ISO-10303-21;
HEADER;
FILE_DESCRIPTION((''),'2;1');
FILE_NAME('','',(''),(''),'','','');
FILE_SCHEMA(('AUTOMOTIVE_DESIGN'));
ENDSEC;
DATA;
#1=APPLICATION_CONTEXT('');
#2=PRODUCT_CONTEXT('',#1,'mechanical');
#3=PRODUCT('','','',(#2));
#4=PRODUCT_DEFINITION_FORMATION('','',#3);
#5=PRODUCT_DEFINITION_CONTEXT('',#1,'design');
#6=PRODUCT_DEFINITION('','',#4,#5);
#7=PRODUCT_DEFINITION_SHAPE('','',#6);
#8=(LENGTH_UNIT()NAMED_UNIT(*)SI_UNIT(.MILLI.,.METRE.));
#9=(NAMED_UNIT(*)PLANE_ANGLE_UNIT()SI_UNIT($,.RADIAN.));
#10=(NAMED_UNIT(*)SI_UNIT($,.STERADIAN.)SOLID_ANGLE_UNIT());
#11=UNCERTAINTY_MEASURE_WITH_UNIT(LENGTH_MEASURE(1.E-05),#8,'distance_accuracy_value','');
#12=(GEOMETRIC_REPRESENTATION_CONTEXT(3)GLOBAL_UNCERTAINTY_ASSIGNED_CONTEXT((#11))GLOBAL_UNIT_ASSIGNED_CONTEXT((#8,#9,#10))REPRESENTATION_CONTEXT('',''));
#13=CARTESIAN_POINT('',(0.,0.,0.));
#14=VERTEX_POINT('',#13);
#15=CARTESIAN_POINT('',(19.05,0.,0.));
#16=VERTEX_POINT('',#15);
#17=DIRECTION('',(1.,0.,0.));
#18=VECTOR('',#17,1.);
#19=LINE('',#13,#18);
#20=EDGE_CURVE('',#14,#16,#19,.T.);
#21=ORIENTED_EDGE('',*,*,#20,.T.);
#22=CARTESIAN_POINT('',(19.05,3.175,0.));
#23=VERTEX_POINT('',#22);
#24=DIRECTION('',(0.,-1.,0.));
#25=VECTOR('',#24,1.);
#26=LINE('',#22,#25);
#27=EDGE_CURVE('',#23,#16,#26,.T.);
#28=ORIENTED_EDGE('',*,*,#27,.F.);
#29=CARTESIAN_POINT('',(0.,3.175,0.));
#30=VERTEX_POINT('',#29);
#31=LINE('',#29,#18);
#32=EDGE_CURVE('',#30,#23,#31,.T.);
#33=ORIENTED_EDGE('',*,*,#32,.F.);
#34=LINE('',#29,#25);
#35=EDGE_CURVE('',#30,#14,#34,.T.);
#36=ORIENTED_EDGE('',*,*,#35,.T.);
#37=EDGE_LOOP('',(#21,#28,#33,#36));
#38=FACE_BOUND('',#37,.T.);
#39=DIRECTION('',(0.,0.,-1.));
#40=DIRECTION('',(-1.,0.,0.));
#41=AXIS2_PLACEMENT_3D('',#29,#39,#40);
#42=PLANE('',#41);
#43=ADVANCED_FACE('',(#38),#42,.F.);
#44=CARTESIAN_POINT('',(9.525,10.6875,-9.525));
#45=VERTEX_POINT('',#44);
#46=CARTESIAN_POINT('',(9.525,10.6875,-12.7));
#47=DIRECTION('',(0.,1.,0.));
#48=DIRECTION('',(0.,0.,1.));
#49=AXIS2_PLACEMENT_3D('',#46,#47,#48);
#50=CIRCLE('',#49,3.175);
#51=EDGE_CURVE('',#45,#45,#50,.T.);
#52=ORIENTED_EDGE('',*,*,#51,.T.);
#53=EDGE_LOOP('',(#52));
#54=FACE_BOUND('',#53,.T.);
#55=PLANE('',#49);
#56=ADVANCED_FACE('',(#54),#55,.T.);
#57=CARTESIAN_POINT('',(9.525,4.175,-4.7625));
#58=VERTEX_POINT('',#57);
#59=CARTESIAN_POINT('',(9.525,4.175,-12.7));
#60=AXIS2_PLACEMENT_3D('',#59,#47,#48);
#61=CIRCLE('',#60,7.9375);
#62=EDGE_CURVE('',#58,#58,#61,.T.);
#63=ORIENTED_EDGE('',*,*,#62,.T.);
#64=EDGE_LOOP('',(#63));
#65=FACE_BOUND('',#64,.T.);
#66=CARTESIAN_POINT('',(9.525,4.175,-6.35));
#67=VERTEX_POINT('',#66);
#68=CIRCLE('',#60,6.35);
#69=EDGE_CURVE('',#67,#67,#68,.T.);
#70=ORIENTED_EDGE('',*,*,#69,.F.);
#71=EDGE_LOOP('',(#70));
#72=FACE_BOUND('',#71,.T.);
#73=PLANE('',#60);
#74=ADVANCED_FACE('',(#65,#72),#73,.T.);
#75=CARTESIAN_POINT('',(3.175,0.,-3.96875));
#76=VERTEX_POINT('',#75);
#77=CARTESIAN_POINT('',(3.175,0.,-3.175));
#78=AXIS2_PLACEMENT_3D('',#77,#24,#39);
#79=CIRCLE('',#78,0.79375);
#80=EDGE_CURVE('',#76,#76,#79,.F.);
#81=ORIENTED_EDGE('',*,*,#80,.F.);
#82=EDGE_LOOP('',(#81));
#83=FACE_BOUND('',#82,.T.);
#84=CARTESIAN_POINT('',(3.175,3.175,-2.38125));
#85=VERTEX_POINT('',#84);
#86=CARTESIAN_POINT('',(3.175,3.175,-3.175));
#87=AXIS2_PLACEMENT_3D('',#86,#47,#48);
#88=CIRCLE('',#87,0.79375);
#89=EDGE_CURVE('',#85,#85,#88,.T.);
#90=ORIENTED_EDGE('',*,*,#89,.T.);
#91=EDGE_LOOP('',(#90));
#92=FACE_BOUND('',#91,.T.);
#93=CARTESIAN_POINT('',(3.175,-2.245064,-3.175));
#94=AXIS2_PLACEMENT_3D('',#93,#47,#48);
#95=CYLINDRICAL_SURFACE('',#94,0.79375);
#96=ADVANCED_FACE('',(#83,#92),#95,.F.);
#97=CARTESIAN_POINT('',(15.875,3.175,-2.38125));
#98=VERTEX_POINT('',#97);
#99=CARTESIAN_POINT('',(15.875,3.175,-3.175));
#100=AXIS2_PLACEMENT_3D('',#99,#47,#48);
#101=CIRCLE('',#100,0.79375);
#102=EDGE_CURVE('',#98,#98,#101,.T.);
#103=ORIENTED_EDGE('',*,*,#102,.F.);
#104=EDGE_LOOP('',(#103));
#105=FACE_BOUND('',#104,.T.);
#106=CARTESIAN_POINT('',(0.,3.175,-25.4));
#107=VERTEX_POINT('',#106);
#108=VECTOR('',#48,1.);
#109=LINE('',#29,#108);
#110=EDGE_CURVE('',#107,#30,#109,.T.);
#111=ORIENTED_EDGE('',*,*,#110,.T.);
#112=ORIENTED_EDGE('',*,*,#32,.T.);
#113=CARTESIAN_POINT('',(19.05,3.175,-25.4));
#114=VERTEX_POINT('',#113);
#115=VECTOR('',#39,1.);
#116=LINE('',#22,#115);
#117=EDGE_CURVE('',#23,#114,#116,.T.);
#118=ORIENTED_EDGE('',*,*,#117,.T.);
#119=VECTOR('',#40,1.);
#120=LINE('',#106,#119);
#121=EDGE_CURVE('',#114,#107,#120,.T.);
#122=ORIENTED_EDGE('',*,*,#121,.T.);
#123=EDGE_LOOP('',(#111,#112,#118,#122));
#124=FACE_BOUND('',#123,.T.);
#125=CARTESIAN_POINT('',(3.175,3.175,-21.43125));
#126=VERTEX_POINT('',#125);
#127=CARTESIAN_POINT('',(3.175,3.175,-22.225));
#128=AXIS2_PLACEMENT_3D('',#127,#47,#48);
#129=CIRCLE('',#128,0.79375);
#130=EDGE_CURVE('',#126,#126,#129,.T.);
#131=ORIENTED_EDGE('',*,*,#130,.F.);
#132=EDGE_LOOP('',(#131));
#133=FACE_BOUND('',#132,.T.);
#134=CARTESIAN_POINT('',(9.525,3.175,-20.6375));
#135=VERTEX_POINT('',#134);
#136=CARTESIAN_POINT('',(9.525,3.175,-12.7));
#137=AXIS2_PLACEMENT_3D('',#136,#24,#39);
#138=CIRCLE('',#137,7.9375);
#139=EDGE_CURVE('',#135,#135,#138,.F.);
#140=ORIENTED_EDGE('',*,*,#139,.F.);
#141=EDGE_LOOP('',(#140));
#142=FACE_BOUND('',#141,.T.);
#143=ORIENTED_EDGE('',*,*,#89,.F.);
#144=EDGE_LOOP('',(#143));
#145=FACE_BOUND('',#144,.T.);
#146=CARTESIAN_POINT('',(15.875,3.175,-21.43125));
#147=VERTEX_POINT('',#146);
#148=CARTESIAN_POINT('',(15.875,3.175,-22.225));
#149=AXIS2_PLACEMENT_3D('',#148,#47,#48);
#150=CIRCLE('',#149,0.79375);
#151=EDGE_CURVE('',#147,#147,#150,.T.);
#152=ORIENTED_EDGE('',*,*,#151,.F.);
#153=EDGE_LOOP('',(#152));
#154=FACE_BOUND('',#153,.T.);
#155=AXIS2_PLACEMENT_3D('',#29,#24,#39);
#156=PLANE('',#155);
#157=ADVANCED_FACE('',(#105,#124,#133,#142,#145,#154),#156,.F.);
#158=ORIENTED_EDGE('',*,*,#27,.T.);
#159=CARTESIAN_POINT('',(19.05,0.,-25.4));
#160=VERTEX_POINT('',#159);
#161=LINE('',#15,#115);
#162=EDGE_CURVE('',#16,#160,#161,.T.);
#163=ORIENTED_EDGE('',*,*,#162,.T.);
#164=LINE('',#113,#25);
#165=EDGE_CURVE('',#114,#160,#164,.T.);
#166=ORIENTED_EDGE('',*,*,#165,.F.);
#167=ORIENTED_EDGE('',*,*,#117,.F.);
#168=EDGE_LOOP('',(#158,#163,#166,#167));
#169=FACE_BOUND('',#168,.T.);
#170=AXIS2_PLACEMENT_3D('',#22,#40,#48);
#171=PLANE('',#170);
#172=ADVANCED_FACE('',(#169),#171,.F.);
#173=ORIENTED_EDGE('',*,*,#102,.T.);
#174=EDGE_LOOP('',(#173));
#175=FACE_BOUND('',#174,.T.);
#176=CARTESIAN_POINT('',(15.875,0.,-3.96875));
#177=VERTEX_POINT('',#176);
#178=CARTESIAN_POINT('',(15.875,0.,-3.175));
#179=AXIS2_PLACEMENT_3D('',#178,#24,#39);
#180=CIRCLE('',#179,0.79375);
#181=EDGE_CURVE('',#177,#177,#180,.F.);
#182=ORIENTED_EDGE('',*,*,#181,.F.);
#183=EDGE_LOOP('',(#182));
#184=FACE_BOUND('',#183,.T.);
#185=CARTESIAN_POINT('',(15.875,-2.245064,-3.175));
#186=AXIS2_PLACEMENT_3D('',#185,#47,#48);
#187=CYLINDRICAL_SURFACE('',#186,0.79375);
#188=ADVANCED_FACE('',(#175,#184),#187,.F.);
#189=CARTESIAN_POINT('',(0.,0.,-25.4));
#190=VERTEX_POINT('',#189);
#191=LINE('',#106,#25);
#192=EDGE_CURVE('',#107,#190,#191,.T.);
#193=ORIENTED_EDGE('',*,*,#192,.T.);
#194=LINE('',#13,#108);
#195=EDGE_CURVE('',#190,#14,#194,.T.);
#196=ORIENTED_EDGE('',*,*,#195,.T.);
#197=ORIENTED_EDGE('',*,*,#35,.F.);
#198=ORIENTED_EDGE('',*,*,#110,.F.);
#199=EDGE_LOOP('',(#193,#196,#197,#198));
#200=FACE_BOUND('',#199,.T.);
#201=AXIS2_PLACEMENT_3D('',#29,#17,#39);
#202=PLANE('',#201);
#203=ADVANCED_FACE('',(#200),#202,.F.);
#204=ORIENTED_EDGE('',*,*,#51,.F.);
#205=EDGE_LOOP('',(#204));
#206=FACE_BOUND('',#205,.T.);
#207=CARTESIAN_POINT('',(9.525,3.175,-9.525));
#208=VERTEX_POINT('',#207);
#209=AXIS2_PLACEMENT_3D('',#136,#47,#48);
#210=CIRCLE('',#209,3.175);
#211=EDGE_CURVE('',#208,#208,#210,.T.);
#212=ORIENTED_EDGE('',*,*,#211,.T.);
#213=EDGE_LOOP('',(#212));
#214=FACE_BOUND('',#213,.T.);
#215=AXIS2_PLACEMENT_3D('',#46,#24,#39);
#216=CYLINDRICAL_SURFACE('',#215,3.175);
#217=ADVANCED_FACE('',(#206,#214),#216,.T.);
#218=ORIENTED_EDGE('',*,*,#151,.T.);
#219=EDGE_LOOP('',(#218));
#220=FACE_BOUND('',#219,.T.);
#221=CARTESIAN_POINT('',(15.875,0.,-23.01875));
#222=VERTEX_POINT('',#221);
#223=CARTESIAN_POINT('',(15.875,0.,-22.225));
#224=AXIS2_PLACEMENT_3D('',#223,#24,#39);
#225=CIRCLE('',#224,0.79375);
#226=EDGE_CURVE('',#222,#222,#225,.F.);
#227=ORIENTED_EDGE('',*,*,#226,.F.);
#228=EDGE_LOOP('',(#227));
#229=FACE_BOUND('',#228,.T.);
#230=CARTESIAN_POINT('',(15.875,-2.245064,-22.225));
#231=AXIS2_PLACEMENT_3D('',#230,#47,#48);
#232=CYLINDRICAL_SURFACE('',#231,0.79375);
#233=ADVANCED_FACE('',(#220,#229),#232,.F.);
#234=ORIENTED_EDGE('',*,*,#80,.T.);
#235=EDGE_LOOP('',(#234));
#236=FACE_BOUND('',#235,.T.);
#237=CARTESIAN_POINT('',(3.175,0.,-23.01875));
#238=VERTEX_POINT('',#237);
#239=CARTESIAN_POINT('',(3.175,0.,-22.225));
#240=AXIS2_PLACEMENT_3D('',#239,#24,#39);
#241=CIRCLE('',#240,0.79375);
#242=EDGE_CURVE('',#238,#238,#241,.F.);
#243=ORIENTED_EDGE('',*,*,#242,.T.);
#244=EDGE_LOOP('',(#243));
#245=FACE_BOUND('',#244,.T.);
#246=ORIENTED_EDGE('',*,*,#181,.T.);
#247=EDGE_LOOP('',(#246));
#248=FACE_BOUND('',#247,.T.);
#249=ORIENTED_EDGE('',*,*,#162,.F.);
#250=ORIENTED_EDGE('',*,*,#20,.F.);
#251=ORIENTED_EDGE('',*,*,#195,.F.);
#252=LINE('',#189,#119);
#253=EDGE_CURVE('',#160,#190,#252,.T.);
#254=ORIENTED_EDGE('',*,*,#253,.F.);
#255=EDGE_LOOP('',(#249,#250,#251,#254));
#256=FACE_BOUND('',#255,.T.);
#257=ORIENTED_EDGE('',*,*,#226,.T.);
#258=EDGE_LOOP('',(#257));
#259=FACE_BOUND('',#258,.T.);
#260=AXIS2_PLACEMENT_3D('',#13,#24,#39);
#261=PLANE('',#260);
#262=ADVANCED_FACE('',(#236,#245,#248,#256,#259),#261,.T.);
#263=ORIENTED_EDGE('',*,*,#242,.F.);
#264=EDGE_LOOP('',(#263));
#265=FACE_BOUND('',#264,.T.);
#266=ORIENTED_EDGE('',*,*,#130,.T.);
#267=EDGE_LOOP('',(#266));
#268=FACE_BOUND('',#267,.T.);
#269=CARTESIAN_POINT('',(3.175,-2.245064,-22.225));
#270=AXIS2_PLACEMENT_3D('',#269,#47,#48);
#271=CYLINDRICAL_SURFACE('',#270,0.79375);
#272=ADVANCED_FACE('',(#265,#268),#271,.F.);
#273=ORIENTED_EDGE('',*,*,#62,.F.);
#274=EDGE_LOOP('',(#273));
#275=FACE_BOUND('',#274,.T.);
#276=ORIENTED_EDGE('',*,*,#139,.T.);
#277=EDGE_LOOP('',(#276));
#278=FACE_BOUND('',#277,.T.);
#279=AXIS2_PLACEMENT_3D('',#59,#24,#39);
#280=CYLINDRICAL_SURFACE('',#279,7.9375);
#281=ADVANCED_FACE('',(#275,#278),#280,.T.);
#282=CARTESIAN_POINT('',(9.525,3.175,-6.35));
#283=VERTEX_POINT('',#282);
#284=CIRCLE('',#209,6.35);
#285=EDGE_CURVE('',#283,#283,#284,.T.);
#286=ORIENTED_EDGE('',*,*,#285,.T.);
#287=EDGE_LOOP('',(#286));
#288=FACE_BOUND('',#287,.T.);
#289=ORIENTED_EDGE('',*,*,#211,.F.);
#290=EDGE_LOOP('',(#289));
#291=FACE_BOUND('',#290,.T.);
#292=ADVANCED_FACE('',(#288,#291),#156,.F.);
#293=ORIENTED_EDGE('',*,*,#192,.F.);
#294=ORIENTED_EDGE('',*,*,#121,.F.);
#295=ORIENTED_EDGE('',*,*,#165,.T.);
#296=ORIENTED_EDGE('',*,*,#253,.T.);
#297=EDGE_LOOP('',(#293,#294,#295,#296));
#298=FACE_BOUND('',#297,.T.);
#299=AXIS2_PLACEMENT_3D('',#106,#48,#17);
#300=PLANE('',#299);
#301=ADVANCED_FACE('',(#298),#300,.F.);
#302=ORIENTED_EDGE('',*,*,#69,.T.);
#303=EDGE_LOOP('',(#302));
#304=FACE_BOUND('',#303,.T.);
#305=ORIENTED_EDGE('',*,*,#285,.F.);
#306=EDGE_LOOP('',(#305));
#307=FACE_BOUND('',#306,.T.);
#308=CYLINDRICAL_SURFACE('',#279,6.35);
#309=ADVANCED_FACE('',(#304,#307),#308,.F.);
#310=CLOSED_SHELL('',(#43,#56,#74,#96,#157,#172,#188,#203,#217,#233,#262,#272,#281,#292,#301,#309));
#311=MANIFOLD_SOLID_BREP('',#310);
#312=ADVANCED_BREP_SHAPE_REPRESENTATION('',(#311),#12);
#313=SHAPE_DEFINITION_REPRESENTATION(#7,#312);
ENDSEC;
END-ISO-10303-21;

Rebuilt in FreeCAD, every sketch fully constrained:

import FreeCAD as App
import Part
import Sketcher
from FreeCAD import Vector
Q = App.Units.Quantity

doc = App.newDocument("Part")
body = doc.addObject("PartDesign::Body", "Body")

# Sketch on XZ plane
sketch1 = body.newObject("Sketcher::SketchObject", "Sketch")
sketch1.AttachmentSupport = (doc.getObject("XZ_Plane"), [""])
sketch1.MapMode = "FlatFace"
sketch1.addGeometry(Part.LineSegment(Vector(0, -25, 0), Vector(0, 0, 0)), False)
sketch1.addGeometry(Part.LineSegment(Vector(0, 0, 0), Vector(19, 0, 0)), False)
sketch1.addGeometry(Part.LineSegment(Vector(19, 0, 0), Vector(19, -25, 0)), False)
sketch1.addGeometry(Part.LineSegment(Vector(19, -25, 0), Vector(0, -25, 0)), False)
sketch1.addConstraint(Sketcher.Constraint("Coincident", 0, 2, 1, 1))
sketch1.addConstraint(Sketcher.Constraint("Coincident", 1, 2, 2, 1))
sketch1.addConstraint(Sketcher.Constraint("Coincident", 2, 2, 3, 1))
sketch1.addConstraint(Sketcher.Constraint("Coincident", 3, 2, 0, 1))
sketch1.addConstraint(Sketcher.Constraint("Vertical", 0))
sketch1.addConstraint(Sketcher.Constraint("Horizontal", 1))
sketch1.addConstraint(Sketcher.Constraint("Vertical", 2))
sketch1.addConstraint(Sketcher.Constraint("Horizontal", 3))
sketch1.addConstraint(Sketcher.Constraint("Coincident", 0, 2, -1, 1))
sketch1.addConstraint(Sketcher.Constraint("DistanceY", 0, 1, 0, 2, Q("1 in")))
sketch1.addConstraint(Sketcher.Constraint("DistanceX", 1, 1, 1, 2, Q("0.75 in")))
pad1 = body.newObject("PartDesign::Pad", "Pad")
pad1.Profile = sketch1
pad1.Length = Q("0.125 in")
pad1.Reversed = True

# Sketch on XZ plane
sketch2 = body.newObject("Sketcher::SketchObject", "Sketch001")
sketch2.AttachmentSupport = (doc.getObject("XZ_Plane"), [""])
sketch2.MapMode = "FlatFace"
sketch2.AttachmentOffset = App.Placement(Vector(0, 0, -0.125 * 25.4), App.Rotation())
sketch2.addGeometry(Part.Circle(Vector(9.5, -12.7, 0), Vector(0, 0, 1), 3.2), False)
sketch2.addConstraint(Sketcher.Constraint("Diameter", 0, Q("0.25 in")))
sketch2.addConstraint(Sketcher.Constraint("DistanceY", 0, 3, -1, 1, Q("0.5 in")))
sketch2.addConstraint(Sketcher.Constraint("DistanceX", -1, 1, 0, 3, Q("0.375 in")))
pad2 = body.newObject("PartDesign::Pad", "Pad001")
pad2.Profile = sketch2
pad2.Length = 7.5125
pad2.Reversed = True

# Sketch on XZ plane
sketch3 = body.newObject("Sketcher::SketchObject", "Sketch002")
sketch3.AttachmentSupport = (doc.getObject("XZ_Plane"), [""])
sketch3.MapMode = "FlatFace"
sketch3.AttachmentOffset = App.Placement(Vector(0, 0, -0.125 * 25.4), App.Rotation())
sketch3.addGeometry(Part.Circle(Vector(3.2, -22.2, 0), Vector(0, 0, 1), 0.8), False)
sketch3.addGeometry(Part.Circle(Vector(15.9, -22.2, 0), Vector(0, 0, 1), 0.8), False)
sketch3.addGeometry(Part.Circle(Vector(15.9, -3.2, 0), Vector(0, 0, 1), 0.8), False)
sketch3.addGeometry(Part.Circle(Vector(3.2, -3.2, 0), Vector(0, 0, 1), 0.8), False)
sketch3.addConstraint(Sketcher.Constraint("Equal", 0, 1))
sketch3.addConstraint(Sketcher.Constraint("Equal", 1, 2))
sketch3.addConstraint(Sketcher.Constraint("Equal", 2, 3))
sketch3.addConstraint(Sketcher.Constraint("Horizontal", 0, 3, 1, 3))
sketch3.addConstraint(Sketcher.Constraint("Horizontal", 2, 3, 3, 3))
sketch3.addConstraint(Sketcher.Constraint("Vertical", 1, 3, 2, 3))
sketch3.addConstraint(Sketcher.Constraint("Vertical", 0, 3, 3, 3))
sketch3.addConstraint(Sketcher.Constraint("Diameter", 0, Q("0.0625 in")))
sketch3.addConstraint(Sketcher.Constraint("DistanceX", 0, 3, 1, 3, Q("0.5 in")))
sketch3.addConstraint(Sketcher.Constraint("DistanceY", 1, 3, 2, 3, Q("0.75 in")))
sketch3.addConstraint(Sketcher.Constraint("DistanceX", -1, 1, 0, 3, Q("0.125 in")))
sketch3.addConstraint(Sketcher.Constraint("DistanceY", 0, 3, -1, 1, Q("0.875 in")))
pocket1 = body.newObject("PartDesign::Pocket", "Pocket")
pocket1.Profile = sketch3
pocket1.Length = Q("0.125 in")
pocket1.Reversed = True

# Sketch on XZ plane
sketch4 = body.newObject("Sketcher::SketchObject", "Sketch003")
sketch4.AttachmentSupport = (doc.getObject("XZ_Plane"), [""])
sketch4.MapMode = "FlatFace"
sketch4.AttachmentOffset = App.Placement(Vector(0, 0, -0.125 * 25.4), App.Rotation())
sketch4.addGeometry(Part.Circle(Vector(10, -13, 0), Vector(0, 0, 1), 8), False)
sketch4.addGeometry(Part.Circle(Vector(10, -13, 0), Vector(0, 0, 1), 6), False)
sketch4.addConstraint(Sketcher.Constraint("Coincident", 1, 3, 0, 3))
sketch4.addConstraint(Sketcher.Constraint("Diameter", 1, Q("0.5 in")))
sketch4.addConstraint(Sketcher.Constraint("Diameter", 0, Q("0.625 in")))
sketch4.addConstraint(Sketcher.Constraint("DistanceY", 0, 3, -1, 1, Q("0.5 in")))
sketch4.addConstraint(Sketcher.Constraint("DistanceX", -1, 1, 0, 3, Q("0.375 in")))
pad3 = body.newObject("PartDesign::Pad", "Pad002")
pad3.Profile = sketch4
pad3.Length = 1
pad3.Reversed = True

doc.recompute()
